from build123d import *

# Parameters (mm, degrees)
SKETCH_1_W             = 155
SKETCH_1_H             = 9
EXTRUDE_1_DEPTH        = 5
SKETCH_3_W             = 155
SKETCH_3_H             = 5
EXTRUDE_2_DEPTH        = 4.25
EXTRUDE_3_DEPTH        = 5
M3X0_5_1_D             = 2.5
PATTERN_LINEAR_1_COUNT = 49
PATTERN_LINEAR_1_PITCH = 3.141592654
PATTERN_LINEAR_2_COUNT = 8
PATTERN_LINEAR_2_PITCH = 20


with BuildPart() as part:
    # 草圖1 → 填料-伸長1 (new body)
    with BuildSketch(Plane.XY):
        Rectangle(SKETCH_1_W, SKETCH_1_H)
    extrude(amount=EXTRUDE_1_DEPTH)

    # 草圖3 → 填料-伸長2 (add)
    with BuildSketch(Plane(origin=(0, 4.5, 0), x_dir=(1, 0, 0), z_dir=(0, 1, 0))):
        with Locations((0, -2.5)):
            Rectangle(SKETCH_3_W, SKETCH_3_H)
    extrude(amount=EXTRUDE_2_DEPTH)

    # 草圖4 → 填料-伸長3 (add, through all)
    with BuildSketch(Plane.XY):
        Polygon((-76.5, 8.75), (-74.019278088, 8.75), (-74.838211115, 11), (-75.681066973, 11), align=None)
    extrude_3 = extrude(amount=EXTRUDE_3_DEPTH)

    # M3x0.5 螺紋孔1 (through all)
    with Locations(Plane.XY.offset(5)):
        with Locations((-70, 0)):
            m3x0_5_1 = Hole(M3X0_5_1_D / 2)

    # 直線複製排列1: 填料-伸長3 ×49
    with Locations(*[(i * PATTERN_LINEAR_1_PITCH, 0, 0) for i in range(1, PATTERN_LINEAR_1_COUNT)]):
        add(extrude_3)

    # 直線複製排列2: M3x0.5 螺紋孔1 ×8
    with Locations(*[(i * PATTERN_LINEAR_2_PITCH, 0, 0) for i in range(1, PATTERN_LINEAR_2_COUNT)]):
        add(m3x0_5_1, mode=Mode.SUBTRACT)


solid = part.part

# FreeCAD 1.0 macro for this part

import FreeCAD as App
import Part
import Sketcher
from FreeCAD import Vector
Q = App.Units.Quantity


def add_polygon(sketch, points):
    """Adds a closed chain of lines whose ends are joined by coincident constraints."""
    first, n = sketch.GeometryCount, len(points)
    for a, b in zip(points, points[1:] + points[:1]):
        sketch.addGeometry(Part.LineSegment(App.Vector(*a, 0), App.Vector(*b, 0)), False)
    for i in range(n):
        sketch.addConstraint(Sketcher.Constraint("Coincident", first + i, 2, first + (i + 1) % n, 1))

doc = App.newDocument("Part")
body = doc.addObject("PartDesign::Body", "Body")

sketch1 = body.newObject("Sketcher::SketchObject", "Sketch")
sketch1.AttachmentSupport = (doc.getObject("XY_Plane"), [""])
sketch1.MapMode = "FlatFace"
add_polygon(sketch1, [(-78, 4), (-78, -4), (78, -4), (78, 4)])
sketch1.addConstraint([
    Sketcher.Constraint("Vertical", 0),
    Sketcher.Constraint("Horizontal", 1),
    Sketcher.Constraint("Vertical", 2),
    Sketcher.Constraint("Horizontal", 3),
    Sketcher.Constraint("Symmetric", 0, 2, 2, 2, -1, 1),
    Sketcher.Constraint("DistanceX", 1, 1, 1, 2, 155.0),
    Sketcher.Constraint("DistanceY", 0, 2, 0, 1, 9.0),
])
pad1 = body.newObject("PartDesign::Pad", "Pad")
pad1.Profile = sketch1
pad1.Length = 5

sketch2 = body.newObject("Sketcher::SketchObject", "Sketch001")
sketch2.AttachmentSupport = (doc.getObject("XZ_Plane"), [""])
sketch2.MapMode = "FlatFace"
sketch2.AttachmentOffset = App.Placement(Vector(0, 0, -4.5), App.Rotation())
add_polygon(sketch2, [(-78, 0), (-78, 5), (78, 5), (78, 0)])
sketch2.addConstraint([
    Sketcher.Constraint("Vertical", 0),
    Sketcher.Constraint("Horizontal", 1),
    Sketcher.Constraint("Vertical", 2),
    Sketcher.Constraint("Horizontal", 3),
    Sketcher.Constraint("Symmetric", 2, 2, 3, 2, -1, 1),
    Sketcher.Constraint("DistanceX", 1, 1, 1, 2, 155.0),
    Sketcher.Constraint("DistanceY", 0, 1, 0, 2, 5.0),
])
pad2 = body.newObject("PartDesign::Pad", "Pad001")
pad2.Profile = sketch2
pad2.Length = 4.25
pad2.Reversed = True

sketch3 = body.newObject("Sketcher::SketchObject", "Sketch002")
sketch3.AttachmentSupport = (doc.getObject("XY_Plane"), [""])
sketch3.MapMode = "FlatFace"
add_polygon(sketch3, [(-76.5, 8.8), (-74, 8.8), (-74.8, 11), (-75.7, 11)])
sketch3.addConstraint([
    Sketcher.Constraint("Horizontal", 0),
    Sketcher.Constraint("Horizontal", 2),
    Sketcher.Constraint("Equal", 1, 3),
    Sketcher.Constraint("Angle", 1, Q("110 deg")),
    Sketcher.Constraint("DistanceY", -1, 1, 1, 2, 11.0),
    Sketcher.Constraint("DistanceX", 3, 2, -1, 1, 76.5),
    Sketcher.Constraint("DistanceY", -1, 1, 0, 2, 8.75),
    Sketcher.Constraint("DistanceX", 0, 1, 0, 2, 2.480722),
])
pad3 = body.newObject("PartDesign::Pad", "Pad002")
pad3.Profile = sketch3
pad3.Length = 5

sketch4 = body.newObject("Sketcher::SketchObject", "Sketch003")
sketch4.AttachmentSupport = (doc.getObject("XY_Plane"), [""])
sketch4.MapMode = "FlatFace"
sketch4.AttachmentOffset = App.Placement(Vector(0, 0, 5), App.Rotation())
sketch4.addGeometry(Part.Circle(Vector(-70, 0, 0), Vector(0, 0, 1), 1.2), False)
sketch4.addConstraint([
    Sketcher.Constraint("PointOnObject", 0, 3, -1),
    Sketcher.Constraint("Diameter", 0, 2.5),
    Sketcher.Constraint("DistanceX", 0, 3, -1, 1, 70.0),
])
doc.recompute()
hole = body.newObject("PartDesign::Hole", "Hole")
hole.Profile = sketch4
hole.ThreadType = "None"
hole.Diameter = 2.5
hole.DepthType = "ThroughAll"
doc.recompute()

linearpattern = body.newObject("PartDesign::LinearPattern", "LinearPattern")
linearpattern.Originals = [pad3]
linearpattern.Direction = (doc.getObject("X_Axis"), [""])
linearpattern.Mode = "offset"
linearpattern.Offset = 3.141593
linearpattern.Occurrences = 49
body.Tip = linearpattern
doc.recompute()

linearpattern2 = body.newObject("PartDesign::LinearPattern", "LinearPattern001")
linearpattern2.Originals = [hole]
linearpattern2.Direction = (doc.getObject("X_Axis"), [""])
linearpattern2.Mode = "offset"
linearpattern2.Offset = 20
linearpattern2.Occurrences = 8
body.Tip = linearpattern2

doc.recompute()
